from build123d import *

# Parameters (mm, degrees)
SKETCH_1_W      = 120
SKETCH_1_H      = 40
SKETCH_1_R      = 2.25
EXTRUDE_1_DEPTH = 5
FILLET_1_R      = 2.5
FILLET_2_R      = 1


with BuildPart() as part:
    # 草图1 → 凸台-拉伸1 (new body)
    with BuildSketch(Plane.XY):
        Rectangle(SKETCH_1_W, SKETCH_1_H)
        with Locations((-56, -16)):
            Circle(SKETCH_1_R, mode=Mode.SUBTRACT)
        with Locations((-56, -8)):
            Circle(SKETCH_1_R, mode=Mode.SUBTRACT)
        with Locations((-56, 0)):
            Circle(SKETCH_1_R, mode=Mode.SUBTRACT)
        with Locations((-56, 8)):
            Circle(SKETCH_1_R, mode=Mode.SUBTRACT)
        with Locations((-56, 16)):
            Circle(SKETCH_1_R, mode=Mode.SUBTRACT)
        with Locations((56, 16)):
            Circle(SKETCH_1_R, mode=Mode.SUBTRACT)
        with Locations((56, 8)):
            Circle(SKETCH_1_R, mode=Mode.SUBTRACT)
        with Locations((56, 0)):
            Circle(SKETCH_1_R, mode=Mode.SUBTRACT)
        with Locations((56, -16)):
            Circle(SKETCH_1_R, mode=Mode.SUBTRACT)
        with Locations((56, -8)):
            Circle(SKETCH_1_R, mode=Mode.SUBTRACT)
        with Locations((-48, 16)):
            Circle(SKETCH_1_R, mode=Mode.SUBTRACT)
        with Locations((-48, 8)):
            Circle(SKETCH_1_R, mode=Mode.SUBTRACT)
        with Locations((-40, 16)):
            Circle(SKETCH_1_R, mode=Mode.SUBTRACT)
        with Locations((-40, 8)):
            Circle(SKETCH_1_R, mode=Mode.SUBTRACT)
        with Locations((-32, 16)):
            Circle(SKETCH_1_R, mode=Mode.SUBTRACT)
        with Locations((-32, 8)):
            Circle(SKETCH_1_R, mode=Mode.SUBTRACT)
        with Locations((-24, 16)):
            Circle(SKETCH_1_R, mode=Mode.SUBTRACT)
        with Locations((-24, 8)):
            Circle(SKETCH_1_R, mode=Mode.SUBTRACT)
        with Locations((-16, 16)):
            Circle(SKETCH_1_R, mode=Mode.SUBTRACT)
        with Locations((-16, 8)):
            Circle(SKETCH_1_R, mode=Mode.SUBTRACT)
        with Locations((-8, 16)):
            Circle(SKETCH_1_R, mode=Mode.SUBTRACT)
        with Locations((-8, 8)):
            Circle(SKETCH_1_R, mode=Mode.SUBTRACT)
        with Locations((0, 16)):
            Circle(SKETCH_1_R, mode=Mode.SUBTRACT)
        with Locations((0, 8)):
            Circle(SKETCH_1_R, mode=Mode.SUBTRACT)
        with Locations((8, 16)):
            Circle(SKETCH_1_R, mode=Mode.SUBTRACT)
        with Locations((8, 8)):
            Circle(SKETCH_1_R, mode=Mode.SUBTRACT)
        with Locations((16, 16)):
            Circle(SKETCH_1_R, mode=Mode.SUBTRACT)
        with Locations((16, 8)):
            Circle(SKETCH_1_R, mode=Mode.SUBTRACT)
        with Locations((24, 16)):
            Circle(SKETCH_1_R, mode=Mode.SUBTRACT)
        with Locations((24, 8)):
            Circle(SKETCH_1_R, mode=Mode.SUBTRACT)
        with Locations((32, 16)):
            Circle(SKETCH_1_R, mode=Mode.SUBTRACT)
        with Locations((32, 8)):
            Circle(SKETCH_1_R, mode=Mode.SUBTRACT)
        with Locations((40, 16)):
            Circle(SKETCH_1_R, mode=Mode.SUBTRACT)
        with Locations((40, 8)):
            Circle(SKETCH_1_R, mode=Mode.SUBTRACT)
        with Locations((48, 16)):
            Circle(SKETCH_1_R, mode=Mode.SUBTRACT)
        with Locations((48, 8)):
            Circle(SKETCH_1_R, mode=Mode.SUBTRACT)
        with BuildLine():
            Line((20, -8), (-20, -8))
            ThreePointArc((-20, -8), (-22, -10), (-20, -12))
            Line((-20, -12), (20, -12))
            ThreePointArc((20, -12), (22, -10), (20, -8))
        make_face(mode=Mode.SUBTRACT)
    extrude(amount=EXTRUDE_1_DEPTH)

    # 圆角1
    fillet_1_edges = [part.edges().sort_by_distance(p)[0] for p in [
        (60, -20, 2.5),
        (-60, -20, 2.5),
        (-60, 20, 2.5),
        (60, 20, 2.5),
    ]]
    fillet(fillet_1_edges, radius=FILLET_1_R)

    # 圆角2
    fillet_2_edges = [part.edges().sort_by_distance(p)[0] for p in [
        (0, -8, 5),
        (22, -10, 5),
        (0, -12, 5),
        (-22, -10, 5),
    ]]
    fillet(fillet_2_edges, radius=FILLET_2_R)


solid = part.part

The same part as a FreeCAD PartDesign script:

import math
import FreeCAD as App
import Part
import Sketcher


def edges_at(feature, points):
    """Names of the edges that pass closest to the given points."""
    edges = feature.Shape.Edges
    near = lambda p: min(range(len(edges)), key=lambda i: edges[i].distToShape(Part.Vertex(*p))[0])
    return sorted({f"Edge{near(p) + 1}" for p in points})


def add_polygon(sketch, points):
    """Adds a closed chain of lines whose ends are joined by coincident constraints."""
    first, n = sketch.GeometryCount, len(points)
    for a, b in zip(points, points[1:] + points[:1]):
        sketch.addGeometry(Part.LineSegment(App.Vector(*a, 0), App.Vector(*b, 0)), False)
    for i in range(n):
        sketch.addConstraint(Sketcher.Constraint("Coincident", first + i, 2, first + (i + 1) % n, 1))

doc = App.newDocument("Part")
body = doc.addObject("PartDesign::Body", "Body")

# Sketch on XY plane
sketch1 = doc.addObject("Sketcher::SketchObject", "Sketch")
body.addObject(sketch1)
sketch1.AttachmentSupport = (doc.XY_Plane, [""])
sketch1.MapMode = "FlatFace"
add_polygon(sketch1, [(-60, 20), (-60, -20), (60, -20), (60, 20)])  # lines 0-3
sketch1.addGeometry(Part.Circle(App.Vector(-56, -16, 0), App.Vector(0, 0, 1), 2.2), False)  # 4
sketch1.addGeometry(Part.Circle(App.Vector(-56, -8, 0), App.Vector(0, 0, 1), 2.2), False)  # 5
sketch1.addGeometry(Part.LineSegment(App.Vector(-20, -8, 0), App.Vector(20, -8, 0)), False)  # 6
sketch1.addGeometry(Part.ArcOfCircle(Part.Circle(App.Vector(20, -10, 0), App.Vector(0, 0, 1), 2), math.radians(-90), math.radians(90)), False)  # 7
sketch1.addGeometry(Part.LineSegment(App.Vector(20, -12, 0), App.Vector(-20, -12, 0)), False)  # 8
sketch1.addGeometry(Part.ArcOfCircle(Part.Circle(App.Vector(-20, -10, 0), App.Vector(0, 0, 1), 2), math.radians(90), math.radians(270)), False)  # 9
sketch1.addGeometry(Part.Circle(App.Vector(56, -16, 0), App.Vector(0, 0, 1), 2.2), False)  # 10
sketch1.addGeometry(Part.Circle(App.Vector(56, -8, 0), App.Vector(0, 0, 1), 2.2), False)  # 11
sketch1.addGeometry(Part.Circle(App.Vector(-56, 0, 0), App.Vector(0, 0, 1), 2.2), False)  # 12
sketch1.addGeometry(Part.Circle(App.Vector(-56, 8, 0), App.Vector(0, 0, 1), 2.2), False)  # 13
sketch1.addGeometry(Part.Circle(App.Vector(-48, 8, 0), App.Vector(0, 0, 1), 2.2), False)  # 14
sketch1.addGeometry(Part.Circle(App.Vector(-40, 8, 0), App.Vector(0, 0, 1), 2.2), False)  # 15
sketch1.addGeometry(Part.Circle(App.Vector(-32, 8, 0), App.Vector(0, 0, 1), 2.2), False)  # 16
sketch1.addGeometry(Part.Circle(App.Vector(-24, 8, 0), App.Vector(0, 0, 1), 2.2), False)  # 17
sketch1.addGeometry(Part.Circle(App.Vector(-16, 8, 0), App.Vector(0, 0, 1), 2.2), False)  # 18
sketch1.addGeometry(Part.Circle(App.Vector(-8, 8, 0), App.Vector(0, 0, 1), 2.2), False)  # 19
sketch1.addGeometry(Part.Circle(App.Vector(-56, 16, 0), App.Vector(0, 0, 1), 2.2), False)  # 20
sketch1.addGeometry(Part.Circle(App.Vector(-48, 16, 0), App.Vector(0, 0, 1), 2.2), False)  # 21
sketch1.addGeometry(Part.Circle(App.Vector(-40, 16, 0), App.Vector(0, 0, 1), 2.2), False)  # 22
sketch1.addGeometry(Part.Circle(App.Vector(-32, 16, 0), App.Vector(0, 0, 1), 2.2), False)  # 23
sketch1.addGeometry(Part.Circle(App.Vector(-24, 16, 0), App.Vector(0, 0, 1), 2.2), False)  # 24
sketch1.addGeometry(Part.Circle(App.Vector(-16, 16, 0), App.Vector(0, 0, 1), 2.2), False)  # 25
sketch1.addGeometry(Part.Circle(App.Vector(-8, 16, 0), App.Vector(0, 0, 1), 2.2), False)  # 26
sketch1.addGeometry(Part.Circle(App.Vector(0, 8, 0), App.Vector(0, 0, 1), 2.2), False)  # 27
sketch1.addGeometry(Part.Circle(App.Vector(8, 8, 0), App.Vector(0, 0, 1), 2.2), False)  # 28
sketch1.addGeometry(Part.Circle(App.Vector(16, 8, 0), App.Vector(0, 0, 1), 2.2), False)  # 29
sketch1.addGeometry(Part.Circle(App.Vector(24, 8, 0), App.Vector(0, 0, 1), 2.2), False)  # 30
sketch1.addGeometry(Part.Circle(App.Vector(56, 0, 0), App.Vector(0, 0, 1), 2.2), False)  # 31
sketch1.addGeometry(Part.Circle(App.Vector(32, 8, 0), App.Vector(0, 0, 1), 2.2), False)  # 32
sketch1.addGeometry(Part.Circle(App.Vector(40, 8, 0), App.Vector(0, 0, 1), 2.2), False)  # 33
sketch1.addGeometry(Part.Circle(App.Vector(48, 8, 0), App.Vector(0, 0, 1), 2.2), False)  # 34
sketch1.addGeometry(Part.Circle(App.Vector(56, 8, 0), App.Vector(0, 0, 1), 2.2), False)  # 35
sketch1.addGeometry(Part.Circle(App.Vector(0, 16, 0), App.Vector(0, 0, 1), 2.2), False)  # 36
sketch1.addGeometry(Part.Circle(App.Vector(8, 16, 0), App.Vector(0, 0, 1), 2.2), False)  # 37
sketch1.addGeometry(Part.Circle(App.Vector(16, 16, 0), App.Vector(0, 0, 1), 2.2), False)  # 38
sketch1.addGeometry(Part.Circle(App.Vector(24, 16, 0), App.Vector(0, 0, 1), 2.2), False)  # 39
sketch1.addGeometry(Part.Circle(App.Vector(32, 16, 0), App.Vector(0, 0, 1), 2.2), False)  # 40
sketch1.addGeometry(Part.Circle(App.Vector(40, 16, 0), App.Vector(0, 0, 1), 2.2), False)  # 41
sketch1.addGeometry(Part.Circle(App.Vector(48, 16, 0), App.Vector(0, 0, 1), 2.2), False)  # 42
sketch1.addGeometry(Part.Circle(App.Vector(56, 16, 0), App.Vector(0, 0, 1), 2.2), False)  # 43
sketch1.addConstraint([
    Sketcher.Constraint("Tangent", 6, 2, 7, 2),
    Sketcher.Constraint("Tangent", 7, 1, 8, 1),
    Sketcher.Constraint("Tangent", 8, 2, 9, 2),
    Sketcher.Constraint("Tangent", 9, 1, 6, 1),
    Sketcher.Constraint("Vertical", 0),
    Sketcher.Constraint("Horizontal", 1),
    Sketcher.Constraint("Vertical", 2),
    Sketcher.Constraint("Horizontal", 3),
    Sketcher.Constraint("Horizontal", 6),
    Sketcher.Constraint("Horizontal", 8),
    Sketcher.Constraint("Equal", 4, 5),
    Sketcher.Constraint("Equal", 5, 10),
    Sketcher.Constraint("Equal", 10, 11),
    Sketcher.Constraint("Equal", 11, 12),
    Sketcher.Constraint("Equal", 12, 13),
    Sketcher.Constraint("Equal", 13, 14),
    Sketcher.Constraint("Equal", 14, 15),
    Sketcher.Constraint("Equal", 15, 16),
    Sketcher.Constraint("Equal", 16, 17),
    Sketcher.Constraint("Equal", 17, 18),
    Sketcher.Constraint("Equal", 18, 19),
    Sketcher.Constraint("Equal", 19, 20),
    Sketcher.Constraint("Equal", 20, 21),
    Sketcher.Constraint("Equal", 21, 22),
    Sketcher.Constraint("Equal", 22, 23),
    Sketcher.Constraint("Equal", 23, 24),
    Sketcher.Constraint("Equal", 24, 25),
    Sketcher.Constraint("Equal", 25, 26),
    Sketcher.Constraint("Equal", 26, 27),
    Sketcher.Constraint("Equal", 27, 28),
    Sketcher.Constraint("Equal", 28, 29),
    Sketcher.Constraint("Equal", 29, 30),
    Sketcher.Constraint("Equal", 30, 31),
    Sketcher.Constraint("Equal", 31, 32),
    Sketcher.Constraint("Equal", 32, 33),
    Sketcher.Constraint("Equal", 33, 34),
    Sketcher.Constraint("Equal", 34, 35),
    Sketcher.Constraint("Equal", 35, 36),
    Sketcher.Constraint("Equal", 36, 37),
    Sketcher.Constraint("Equal", 37, 38),
    Sketcher.Constraint("Equal", 38, 39),
    Sketcher.Constraint("Equal", 39, 40),
    Sketcher.Constraint("Equal", 40, 41),
    Sketcher.Constraint("Equal", 41, 42),
    Sketcher.Constraint("Equal", 42, 43),
    Sketcher.Constraint("Symmetric", 11, 3, 13, 3, -1, 1),
    Sketcher.Constraint("Symmetric", 10, 3, 20, 3, -1, 1),
    Sketcher.Constraint("Symmetric", 12, 3, 31, 3, -1, 1),
    Sketcher.Constraint("Symmetric", 5, 3, 35, 3, -1, 1),
    Sketcher.Constraint("Symmetric", 4, 3, 43, 3, -1, 1),
    Sketcher.Constraint("Symmetric", 0, 2, 2, 2, -1, 1),
    Sketcher.Constraint("Symmetric", 4, 3, 10, 3, -2),
    Sketcher.Constraint("Symmetric", 5, 3, 11, 3, -2),
    Sketcher.Constraint("Symmetric", 19, 3, 28, 3, -2),
    Sketcher.Constraint("Symmetric", 18, 3, 29, 3, -2),
    Sketcher.Constraint("Symmetric", 17, 3, 30, 3, -2),
    Sketcher.Constraint("Symmetric", 16, 3, 32, 3, -2),
    Sketcher.Constraint("Symmetric", 15, 3, 33, 3, -2),
    Sketcher.Constraint("Symmetric", 14, 3, 34, 3, -2),
    Sketcher.Constraint("Symmetric", 26, 3, 37, 3, -2),
    Sketcher.Constraint("Symmetric", 25, 3, 38, 3, -2),
    Sketcher.Constraint("Symmetric", 24, 3, 39, 3, -2),
    Sketcher.Constraint("Symmetric", 23, 3, 40, 3, -2),
    Sketcher.Constraint("Symmetric", 22, 3, 41, 3, -2),
    Sketcher.Constraint("Symmetric", 21, 3, 42, 3, -2),
    Sketcher.Constraint("PointOnObject", 12, 3, -1),
    Sketcher.Constraint("PointOnObject", 27, 3, -2),
    Sketcher.Constraint("PointOnObject", 36, 3, -2),
    Sketcher.Constraint("Horizontal", 13, 3, 14, 3),
    Sketcher.Constraint("Horizontal", 14, 3, 15, 3),
    Sketcher.Constraint("Horizontal", 15, 3, 16, 3),
    Sketcher.Constraint("Horizontal", 16, 3, 17, 3),
    Sketcher.Constraint("Horizontal", 17, 3, 18, 3),
    Sketcher.Constraint("Horizontal", 18, 3, 19, 3),
    Sketcher.Constraint("Horizontal", 20, 3, 21, 3),
    Sketcher.Constraint("Horizontal", 21, 3, 22, 3),
    Sketcher.Constraint("Horizontal", 22, 3, 23, 3),
    Sketcher.Constraint("Horizontal", 23, 3, 24, 3),
    Sketcher.Constraint("Horizontal", 24, 3, 25, 3),
    Sketcher.Constraint("Horizontal", 25, 3, 26, 3),
    Sketcher.Constraint("Horizontal", 19, 3, 27, 3),
    Sketcher.Constraint("Horizontal", 26, 3, 36, 3),
    Sketcher.Constraint("Horizontal", 11, 3, 6, 2),
    Sketcher.Constraint("Vertical", 4, 3, 5, 3),
    Sketcher.Constraint("Vertical", 5, 3, 12, 3),
    Sketcher.Constraint("Vertical", 14, 3, 21, 3),
    Sketcher.Constraint("Vertical", 15, 3, 22, 3),
    Sketcher.Constraint("Vertical", 16, 3, 23, 3),
    Sketcher.Constraint("Vertical", 17, 3, 24, 3),
    Sketcher.Constraint("Vertical", 18, 3, 25, 3),
    Sketcher.Constraint("Vertical", 19, 3, 26, 3),
    Sketcher.Constraint("Equal", 8, 0),
    Sketcher.Constraint("Radius", 7, 2.0),
    Sketcher.Constraint("Diameter", 4, 4.5),
    Sketcher.Constraint("DistanceX", 1, 1, 1, 2, 120.0),
    Sketcher.Constraint("DistanceX", 6, 1, 6, 2, 40.0),
    Sketcher.Constraint("DistanceX", 4, 3, -1, 1, 56.0),
    Sketcher.Constraint("DistanceY", 4, 3, -1, 1, 16.0),
    Sketcher.Constraint("DistanceY", 5, 3, -1, 1, 8.0),
    Sketcher.Constraint("DistanceX", -1, 1, 7, 3, 20.0),
    Sketcher.Constraint("DistanceX", 14, 3, -1, 1, 48.0),
    Sketcher.Constraint("DistanceX", 15, 3, -1, 1, 40.0),
    Sketcher.Constraint("DistanceX", 16, 3, -1, 1, 32.0),
    Sketcher.Constraint("DistanceX", 17, 3, -1, 1, 24.0),
    Sketcher.Constraint("DistanceX", 18, 3, -1, 1, 16.0),
    Sketcher.Constraint("DistanceX", 19, 3, -1, 1, 8.0),
])
pad1 = doc.addObject("PartDesign::Pad", "Pad")
body.addObject(pad1)
pad1.Profile = sketch1
pad1.Length = 5
doc.recompute()

fillet = doc.addObject("PartDesign::Fillet", "Fillet")
body.addObject(fillet)
fillet.Base = (pad1, edges_at(pad1, [
    (60, -20, 2.5),
    (-60, -20, 2.5),
    (-60, 20, 2.5),
    (60, 20, 2.5),
]))
fillet.Radius = 2.5
doc.recompute()

fillet2 = doc.addObject("PartDesign::Fillet", "Fillet001")
body.addObject(fillet2)
fillet2.Base = (fillet, edges_at(fillet, [
    (0, -8, 5),
    (22, -10, 5),
    (0, -12, 5),
    (-22, -10, 5),
]))
fillet2.Radius = 1

doc.recompute()
